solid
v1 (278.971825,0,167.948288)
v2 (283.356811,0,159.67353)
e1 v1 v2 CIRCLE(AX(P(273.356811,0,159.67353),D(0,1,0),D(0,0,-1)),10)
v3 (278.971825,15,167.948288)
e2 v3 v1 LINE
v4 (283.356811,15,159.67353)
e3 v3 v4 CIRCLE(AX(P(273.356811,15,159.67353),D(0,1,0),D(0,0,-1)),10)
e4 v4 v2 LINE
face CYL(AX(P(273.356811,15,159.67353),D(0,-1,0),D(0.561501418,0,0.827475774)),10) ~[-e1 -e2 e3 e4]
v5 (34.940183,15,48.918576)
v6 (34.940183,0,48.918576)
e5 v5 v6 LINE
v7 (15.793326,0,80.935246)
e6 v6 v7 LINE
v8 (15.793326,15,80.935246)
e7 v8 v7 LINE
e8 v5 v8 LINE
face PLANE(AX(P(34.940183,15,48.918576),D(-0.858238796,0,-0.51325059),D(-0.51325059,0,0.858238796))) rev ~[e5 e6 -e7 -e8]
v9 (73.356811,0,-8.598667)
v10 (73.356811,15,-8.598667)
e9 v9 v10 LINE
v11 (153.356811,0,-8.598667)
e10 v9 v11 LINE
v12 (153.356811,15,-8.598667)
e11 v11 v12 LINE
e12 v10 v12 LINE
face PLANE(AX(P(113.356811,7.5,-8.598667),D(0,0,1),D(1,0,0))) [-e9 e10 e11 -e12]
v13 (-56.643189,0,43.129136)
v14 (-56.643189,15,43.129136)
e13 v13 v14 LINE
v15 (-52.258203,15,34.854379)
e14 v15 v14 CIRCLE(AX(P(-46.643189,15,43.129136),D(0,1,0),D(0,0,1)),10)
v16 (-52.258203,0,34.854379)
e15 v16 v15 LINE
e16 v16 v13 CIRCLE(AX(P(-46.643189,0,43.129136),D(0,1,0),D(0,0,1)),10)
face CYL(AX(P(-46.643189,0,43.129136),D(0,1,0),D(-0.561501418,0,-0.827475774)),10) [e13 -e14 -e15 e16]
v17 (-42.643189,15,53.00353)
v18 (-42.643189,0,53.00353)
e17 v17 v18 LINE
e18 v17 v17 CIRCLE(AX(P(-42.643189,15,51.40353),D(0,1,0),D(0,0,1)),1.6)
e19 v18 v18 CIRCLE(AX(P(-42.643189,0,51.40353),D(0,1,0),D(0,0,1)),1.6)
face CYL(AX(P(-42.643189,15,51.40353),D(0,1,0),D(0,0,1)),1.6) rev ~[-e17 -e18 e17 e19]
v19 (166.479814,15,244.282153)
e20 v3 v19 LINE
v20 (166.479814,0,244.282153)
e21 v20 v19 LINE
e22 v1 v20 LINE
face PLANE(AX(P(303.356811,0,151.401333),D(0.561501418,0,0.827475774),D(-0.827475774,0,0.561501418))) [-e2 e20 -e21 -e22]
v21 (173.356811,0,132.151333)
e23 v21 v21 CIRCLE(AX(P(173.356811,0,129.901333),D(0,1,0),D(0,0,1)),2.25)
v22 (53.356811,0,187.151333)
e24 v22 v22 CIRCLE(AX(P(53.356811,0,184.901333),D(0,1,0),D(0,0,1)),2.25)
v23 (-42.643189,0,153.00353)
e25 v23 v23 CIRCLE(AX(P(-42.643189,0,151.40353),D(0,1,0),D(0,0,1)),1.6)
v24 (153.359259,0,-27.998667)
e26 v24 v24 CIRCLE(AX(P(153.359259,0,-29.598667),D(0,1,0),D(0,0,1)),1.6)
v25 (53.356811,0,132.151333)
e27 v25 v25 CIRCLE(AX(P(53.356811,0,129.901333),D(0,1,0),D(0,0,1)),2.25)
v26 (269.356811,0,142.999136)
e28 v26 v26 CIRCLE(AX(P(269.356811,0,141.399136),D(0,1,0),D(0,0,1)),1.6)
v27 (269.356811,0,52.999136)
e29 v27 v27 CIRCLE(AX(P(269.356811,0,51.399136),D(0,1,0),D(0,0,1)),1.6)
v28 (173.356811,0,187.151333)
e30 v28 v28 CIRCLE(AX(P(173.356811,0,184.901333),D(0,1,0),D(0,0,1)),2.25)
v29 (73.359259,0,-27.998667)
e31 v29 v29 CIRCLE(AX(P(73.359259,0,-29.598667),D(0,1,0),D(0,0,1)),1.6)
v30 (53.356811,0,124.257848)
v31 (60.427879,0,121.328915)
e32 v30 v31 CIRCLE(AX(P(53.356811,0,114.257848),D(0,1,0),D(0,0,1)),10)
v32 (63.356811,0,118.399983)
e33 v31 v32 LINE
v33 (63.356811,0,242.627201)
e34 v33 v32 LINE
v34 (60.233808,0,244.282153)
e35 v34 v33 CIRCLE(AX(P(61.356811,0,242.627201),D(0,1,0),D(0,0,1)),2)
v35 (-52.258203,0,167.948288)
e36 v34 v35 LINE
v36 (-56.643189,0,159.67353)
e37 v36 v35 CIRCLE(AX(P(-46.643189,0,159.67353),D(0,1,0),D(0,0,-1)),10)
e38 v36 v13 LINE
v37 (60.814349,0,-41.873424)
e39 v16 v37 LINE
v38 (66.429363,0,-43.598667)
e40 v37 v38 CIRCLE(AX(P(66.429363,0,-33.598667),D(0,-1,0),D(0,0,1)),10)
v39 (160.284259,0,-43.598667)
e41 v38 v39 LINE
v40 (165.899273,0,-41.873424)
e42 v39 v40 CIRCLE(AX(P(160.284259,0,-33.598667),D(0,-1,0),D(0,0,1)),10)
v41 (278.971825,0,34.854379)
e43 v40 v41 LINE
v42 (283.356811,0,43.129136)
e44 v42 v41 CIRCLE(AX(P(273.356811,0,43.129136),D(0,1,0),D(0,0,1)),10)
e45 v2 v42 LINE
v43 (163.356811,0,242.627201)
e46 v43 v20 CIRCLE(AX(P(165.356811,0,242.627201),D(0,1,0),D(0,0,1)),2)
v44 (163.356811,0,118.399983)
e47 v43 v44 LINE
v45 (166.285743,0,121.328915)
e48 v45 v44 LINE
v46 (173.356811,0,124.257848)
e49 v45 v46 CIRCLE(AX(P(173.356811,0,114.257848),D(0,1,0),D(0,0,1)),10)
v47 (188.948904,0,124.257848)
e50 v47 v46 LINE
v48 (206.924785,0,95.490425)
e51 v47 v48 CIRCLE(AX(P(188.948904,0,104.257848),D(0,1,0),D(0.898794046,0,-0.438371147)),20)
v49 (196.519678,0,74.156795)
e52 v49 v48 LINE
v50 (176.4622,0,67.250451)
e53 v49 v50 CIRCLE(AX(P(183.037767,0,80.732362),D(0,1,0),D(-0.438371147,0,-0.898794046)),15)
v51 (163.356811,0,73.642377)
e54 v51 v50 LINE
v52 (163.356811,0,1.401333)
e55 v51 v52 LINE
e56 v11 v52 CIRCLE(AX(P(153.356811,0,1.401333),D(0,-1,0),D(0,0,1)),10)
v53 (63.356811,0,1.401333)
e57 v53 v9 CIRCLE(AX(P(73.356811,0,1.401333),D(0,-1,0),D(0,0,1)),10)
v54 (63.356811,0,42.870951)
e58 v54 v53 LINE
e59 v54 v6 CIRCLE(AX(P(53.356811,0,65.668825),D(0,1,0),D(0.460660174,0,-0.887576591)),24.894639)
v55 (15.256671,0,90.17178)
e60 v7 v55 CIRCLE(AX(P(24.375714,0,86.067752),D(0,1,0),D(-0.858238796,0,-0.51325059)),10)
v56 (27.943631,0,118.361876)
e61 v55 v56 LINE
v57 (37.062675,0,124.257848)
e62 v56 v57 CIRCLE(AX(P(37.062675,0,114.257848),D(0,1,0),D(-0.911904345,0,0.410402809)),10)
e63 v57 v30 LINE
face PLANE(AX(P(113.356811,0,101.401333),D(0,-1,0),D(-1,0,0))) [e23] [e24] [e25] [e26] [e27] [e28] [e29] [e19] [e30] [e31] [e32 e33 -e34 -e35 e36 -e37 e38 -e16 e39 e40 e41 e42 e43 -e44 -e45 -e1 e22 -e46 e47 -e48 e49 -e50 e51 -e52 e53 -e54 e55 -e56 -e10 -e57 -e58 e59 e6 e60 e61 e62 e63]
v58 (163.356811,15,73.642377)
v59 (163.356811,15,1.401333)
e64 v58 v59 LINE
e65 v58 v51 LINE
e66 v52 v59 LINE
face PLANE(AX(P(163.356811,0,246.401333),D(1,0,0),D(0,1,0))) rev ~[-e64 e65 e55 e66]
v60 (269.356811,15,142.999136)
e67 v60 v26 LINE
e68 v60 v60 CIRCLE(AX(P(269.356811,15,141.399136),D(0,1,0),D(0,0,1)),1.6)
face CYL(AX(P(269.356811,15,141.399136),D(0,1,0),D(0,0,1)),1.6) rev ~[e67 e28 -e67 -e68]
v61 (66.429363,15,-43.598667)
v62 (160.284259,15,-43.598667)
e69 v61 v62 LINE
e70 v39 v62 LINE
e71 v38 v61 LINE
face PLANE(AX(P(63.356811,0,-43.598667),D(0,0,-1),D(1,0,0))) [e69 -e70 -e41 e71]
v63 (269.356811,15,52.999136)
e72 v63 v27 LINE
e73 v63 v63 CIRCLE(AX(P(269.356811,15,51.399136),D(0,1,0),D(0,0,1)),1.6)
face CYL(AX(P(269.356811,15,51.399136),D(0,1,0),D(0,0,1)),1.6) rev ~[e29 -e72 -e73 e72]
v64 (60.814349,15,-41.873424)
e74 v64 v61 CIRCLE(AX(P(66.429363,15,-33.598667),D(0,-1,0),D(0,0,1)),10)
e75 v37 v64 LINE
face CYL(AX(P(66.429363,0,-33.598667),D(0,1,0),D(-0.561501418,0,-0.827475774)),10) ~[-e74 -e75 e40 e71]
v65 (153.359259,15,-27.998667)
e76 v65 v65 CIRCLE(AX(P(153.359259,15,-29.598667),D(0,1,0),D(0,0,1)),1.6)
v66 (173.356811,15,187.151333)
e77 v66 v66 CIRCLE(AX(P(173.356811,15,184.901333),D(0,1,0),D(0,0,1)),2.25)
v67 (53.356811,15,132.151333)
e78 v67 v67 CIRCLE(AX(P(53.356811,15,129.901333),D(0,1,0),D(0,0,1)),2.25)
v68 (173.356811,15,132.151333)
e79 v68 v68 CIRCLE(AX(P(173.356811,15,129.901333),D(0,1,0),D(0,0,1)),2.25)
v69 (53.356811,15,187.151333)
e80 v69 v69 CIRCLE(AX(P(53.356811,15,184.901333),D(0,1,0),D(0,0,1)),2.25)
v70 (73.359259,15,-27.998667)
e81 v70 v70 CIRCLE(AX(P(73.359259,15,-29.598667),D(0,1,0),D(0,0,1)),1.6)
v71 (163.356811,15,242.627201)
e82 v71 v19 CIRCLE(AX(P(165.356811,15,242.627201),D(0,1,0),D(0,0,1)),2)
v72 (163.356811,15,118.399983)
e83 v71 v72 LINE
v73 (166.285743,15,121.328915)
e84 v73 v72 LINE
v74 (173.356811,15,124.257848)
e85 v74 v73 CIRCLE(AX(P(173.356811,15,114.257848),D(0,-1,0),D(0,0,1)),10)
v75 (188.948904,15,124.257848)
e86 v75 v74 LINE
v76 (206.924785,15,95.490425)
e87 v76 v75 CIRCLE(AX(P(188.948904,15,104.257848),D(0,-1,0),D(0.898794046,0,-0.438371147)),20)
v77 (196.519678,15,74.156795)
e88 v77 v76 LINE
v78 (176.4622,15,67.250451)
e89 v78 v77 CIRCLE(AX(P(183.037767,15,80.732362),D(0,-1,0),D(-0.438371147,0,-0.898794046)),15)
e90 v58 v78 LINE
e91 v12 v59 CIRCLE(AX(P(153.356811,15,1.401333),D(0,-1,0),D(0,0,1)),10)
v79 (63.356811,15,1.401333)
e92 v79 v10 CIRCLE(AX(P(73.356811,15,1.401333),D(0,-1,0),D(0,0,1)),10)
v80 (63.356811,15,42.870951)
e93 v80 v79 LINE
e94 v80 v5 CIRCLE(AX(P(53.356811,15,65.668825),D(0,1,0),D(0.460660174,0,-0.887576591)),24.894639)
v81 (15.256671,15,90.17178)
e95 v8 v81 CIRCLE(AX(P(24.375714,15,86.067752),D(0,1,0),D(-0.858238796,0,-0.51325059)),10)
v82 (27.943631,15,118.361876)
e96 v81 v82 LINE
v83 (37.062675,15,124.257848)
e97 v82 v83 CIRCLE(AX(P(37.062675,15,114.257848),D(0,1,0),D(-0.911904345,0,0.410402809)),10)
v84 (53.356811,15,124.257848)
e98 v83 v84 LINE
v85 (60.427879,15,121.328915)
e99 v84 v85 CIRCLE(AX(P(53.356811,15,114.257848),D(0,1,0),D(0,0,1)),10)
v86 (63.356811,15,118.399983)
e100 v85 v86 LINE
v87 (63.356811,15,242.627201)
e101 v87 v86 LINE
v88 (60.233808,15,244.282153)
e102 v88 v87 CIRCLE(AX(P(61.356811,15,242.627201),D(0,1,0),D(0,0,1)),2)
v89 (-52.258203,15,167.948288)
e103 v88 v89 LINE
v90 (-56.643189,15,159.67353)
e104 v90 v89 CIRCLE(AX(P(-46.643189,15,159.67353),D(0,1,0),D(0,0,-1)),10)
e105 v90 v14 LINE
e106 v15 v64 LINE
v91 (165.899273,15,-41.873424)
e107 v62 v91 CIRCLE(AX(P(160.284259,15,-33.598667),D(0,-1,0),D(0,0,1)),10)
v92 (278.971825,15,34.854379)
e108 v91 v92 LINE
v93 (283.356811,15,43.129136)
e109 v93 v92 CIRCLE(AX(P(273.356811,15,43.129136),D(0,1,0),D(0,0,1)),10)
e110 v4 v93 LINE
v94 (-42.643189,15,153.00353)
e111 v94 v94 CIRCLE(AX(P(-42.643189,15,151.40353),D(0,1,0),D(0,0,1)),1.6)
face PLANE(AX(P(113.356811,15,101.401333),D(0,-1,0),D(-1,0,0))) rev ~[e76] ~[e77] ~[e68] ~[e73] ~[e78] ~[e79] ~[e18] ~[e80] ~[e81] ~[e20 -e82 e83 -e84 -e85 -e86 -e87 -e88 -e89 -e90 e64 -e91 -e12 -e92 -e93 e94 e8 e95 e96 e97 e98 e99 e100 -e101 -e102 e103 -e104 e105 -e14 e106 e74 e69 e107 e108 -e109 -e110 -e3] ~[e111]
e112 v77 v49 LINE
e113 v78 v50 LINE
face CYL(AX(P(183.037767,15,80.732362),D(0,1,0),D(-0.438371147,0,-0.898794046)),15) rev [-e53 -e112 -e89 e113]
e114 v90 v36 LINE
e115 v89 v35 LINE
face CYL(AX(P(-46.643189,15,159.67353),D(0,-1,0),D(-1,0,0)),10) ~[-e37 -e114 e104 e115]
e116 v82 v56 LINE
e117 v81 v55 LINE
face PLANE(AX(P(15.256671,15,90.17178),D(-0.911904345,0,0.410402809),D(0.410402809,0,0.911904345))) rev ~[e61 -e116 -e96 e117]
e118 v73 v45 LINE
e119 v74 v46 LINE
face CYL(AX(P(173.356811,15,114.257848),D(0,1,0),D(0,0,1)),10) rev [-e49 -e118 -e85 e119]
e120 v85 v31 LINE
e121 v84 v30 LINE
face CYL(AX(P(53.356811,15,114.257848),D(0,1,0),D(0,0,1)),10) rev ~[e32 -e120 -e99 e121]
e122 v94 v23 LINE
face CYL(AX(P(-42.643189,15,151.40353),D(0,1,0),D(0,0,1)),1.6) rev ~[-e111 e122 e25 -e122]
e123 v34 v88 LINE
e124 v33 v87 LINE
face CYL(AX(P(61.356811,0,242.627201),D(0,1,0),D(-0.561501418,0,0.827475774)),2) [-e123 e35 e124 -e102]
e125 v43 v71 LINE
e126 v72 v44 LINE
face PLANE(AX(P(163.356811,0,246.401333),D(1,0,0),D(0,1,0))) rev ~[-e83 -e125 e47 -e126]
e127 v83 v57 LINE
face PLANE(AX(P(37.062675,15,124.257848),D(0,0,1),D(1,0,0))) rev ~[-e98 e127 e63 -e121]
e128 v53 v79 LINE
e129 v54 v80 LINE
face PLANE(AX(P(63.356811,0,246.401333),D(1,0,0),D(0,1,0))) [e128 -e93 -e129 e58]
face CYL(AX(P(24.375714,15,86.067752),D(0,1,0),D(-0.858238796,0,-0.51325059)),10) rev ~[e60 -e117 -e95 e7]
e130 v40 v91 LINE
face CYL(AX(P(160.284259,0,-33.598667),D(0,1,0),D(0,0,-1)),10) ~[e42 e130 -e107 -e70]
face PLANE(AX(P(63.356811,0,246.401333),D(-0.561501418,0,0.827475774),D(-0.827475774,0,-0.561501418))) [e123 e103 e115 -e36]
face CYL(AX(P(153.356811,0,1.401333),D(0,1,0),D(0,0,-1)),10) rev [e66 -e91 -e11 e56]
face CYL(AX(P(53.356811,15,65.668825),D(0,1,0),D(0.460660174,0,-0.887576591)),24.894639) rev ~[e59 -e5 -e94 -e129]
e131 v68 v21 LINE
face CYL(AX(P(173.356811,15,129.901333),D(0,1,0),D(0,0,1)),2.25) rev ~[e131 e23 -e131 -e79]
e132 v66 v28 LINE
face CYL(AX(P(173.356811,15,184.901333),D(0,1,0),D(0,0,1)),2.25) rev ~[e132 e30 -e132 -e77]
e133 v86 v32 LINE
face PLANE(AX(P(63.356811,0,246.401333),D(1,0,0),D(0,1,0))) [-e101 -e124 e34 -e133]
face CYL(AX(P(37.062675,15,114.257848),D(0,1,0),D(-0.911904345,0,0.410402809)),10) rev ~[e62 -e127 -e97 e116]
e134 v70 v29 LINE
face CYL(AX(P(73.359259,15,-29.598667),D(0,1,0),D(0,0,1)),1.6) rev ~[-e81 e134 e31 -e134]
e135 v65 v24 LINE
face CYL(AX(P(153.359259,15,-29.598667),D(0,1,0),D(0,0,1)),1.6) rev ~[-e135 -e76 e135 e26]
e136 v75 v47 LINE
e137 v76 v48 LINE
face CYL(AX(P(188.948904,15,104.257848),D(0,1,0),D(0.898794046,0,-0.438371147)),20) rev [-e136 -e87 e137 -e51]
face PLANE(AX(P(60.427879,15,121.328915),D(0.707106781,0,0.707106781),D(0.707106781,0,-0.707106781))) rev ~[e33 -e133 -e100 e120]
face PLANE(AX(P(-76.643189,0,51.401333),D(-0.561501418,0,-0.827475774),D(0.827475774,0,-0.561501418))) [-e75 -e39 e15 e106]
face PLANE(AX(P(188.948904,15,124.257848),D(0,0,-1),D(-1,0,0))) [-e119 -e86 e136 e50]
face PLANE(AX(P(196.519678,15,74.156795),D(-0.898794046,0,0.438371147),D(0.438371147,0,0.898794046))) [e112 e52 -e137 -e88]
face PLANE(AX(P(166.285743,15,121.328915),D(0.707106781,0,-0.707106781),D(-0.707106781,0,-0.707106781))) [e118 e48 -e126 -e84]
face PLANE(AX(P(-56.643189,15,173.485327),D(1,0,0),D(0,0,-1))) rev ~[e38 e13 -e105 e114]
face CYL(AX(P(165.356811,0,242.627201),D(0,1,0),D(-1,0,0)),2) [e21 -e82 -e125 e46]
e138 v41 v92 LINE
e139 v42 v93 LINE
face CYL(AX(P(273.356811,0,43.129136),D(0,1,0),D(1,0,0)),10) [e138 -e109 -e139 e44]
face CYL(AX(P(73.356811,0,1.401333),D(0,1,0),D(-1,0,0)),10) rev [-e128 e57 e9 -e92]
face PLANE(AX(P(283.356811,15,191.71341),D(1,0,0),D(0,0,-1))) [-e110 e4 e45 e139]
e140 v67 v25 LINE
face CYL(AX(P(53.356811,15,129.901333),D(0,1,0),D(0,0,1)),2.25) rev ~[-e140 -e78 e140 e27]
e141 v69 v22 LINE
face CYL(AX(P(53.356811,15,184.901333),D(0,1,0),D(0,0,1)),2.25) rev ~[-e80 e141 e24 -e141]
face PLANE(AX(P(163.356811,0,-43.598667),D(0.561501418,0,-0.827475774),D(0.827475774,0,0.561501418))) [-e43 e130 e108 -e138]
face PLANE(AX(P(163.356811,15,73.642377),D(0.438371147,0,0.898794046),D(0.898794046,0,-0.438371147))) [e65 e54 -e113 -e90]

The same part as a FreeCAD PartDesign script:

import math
import FreeCAD as App
import Part
import Sketcher

V = App.Vector
Q = App.Units.Quantity


def edges_at(feature, points):
    """Names of the edges that pass closest to the given points."""
    edges = feature.Shape.Edges
    near = lambda p: min(range(len(edges)), key=lambda i: edges[i].distToShape(Part.Vertex(*p))[0])
    return sorted({f"Edge{near(p) + 1}" for p in points})

doc = App.newDocument("Part")
body = doc.addObject("PartDesign::Body", "Body")

sketch1 = body.newObject("Sketcher::SketchObject", "Sketch")
sketch1.AttachmentSupport = (doc.getObject("XZ_Plane"), [""])
sketch1.MapMode = "FlatFace"
sketch1.addGeometry([
    Part.LineSegment(V(63.356811, -43.598667, 0), V(-76.643189, 51.401333, 0)),
    Part.LineSegment(V(-76.643189, 51.401333, 0), V(-76.643189, 151.401333, 0)),
    Part.LineSegment(V(-76.643189, 151.401333, 0), V(63.356811, 246.401333, 0)),
    Part.LineSegment(V(63.356811, 246.401333, 0), V(163.356811, 246.401333, 0)),
    Part.LineSegment(V(163.356811, 246.401333, 0), V(303.356811, 151.401333, 0)),
    Part.LineSegment(V(303.356811, 151.401333, 0), V(303.356811, 51.401333, 0)),
    Part.LineSegment(V(303.356811, 51.401333, 0), V(163.356811, -43.598667, 0)),
    Part.LineSegment(V(163.356811, -43.598667, 0), V(63.356811, -43.598667, 0)),
], False)
sketch1.addConstraint([
    Sketcher.Constraint("Coincident", 0, 2, 1, 1),
    Sketcher.Constraint("Coincident", 1, 2, 2, 1),
    Sketcher.Constraint("Coincident", 2, 2, 3, 1),
    Sketcher.Constraint("Coincident", 3, 2, 4, 1),
    Sketcher.Constraint("Coincident", 4, 2, 5, 1),
    Sketcher.Constraint("Coincident", 5, 2, 6, 1),
    Sketcher.Constraint("Coincident", 6, 2, 7, 1),
    Sketcher.Constraint("Coincident", 7, 2, 0, 1),
    Sketcher.Constraint("Vertical", 1),
    Sketcher.Constraint("Horizontal", 3),
    Sketcher.Constraint("Vertical", 5),
    Sketcher.Constraint("Horizontal", 7),
    Sketcher.Constraint("Parallel", 0, 4),
    Sketcher.Constraint("Parallel", 2, 6),
    Sketcher.Constraint("Horizontal", 1, 2, 4, 2),
    Sketcher.Constraint("Horizontal", 0, 2, 5, 2),
    Sketcher.Constraint("Vertical", 3, 2, 6, 2),
    Sketcher.Constraint("Vertical", 2, 2, 7, 2),
    Sketcher.Constraint("Equal", 7, 1),
    Sketcher.Constraint("DistanceX", 3, 1, 3, 2, 100.0),
    Sketcher.Constraint("DistanceX", 1, 2, 2, 2, 140.0),
    Sketcher.Constraint("DistanceY", 1, 2, 2, 2, 95.0),
    Sketcher.Constraint("DistanceX", 0, 2, -1, 1, 76.643189),
    Sketcher.Constraint("DistanceY", -1, 1, 0, 2, 51.401333),
])
pad1 = body.newObject("PartDesign::Pad", "Pad")
pad1.Profile = sketch1
pad1.Length = 15
pad1.Reversed = True

sketch2 = body.newObject("Sketcher::SketchObject", "Sketch001")
sketch2.AttachmentSupport = (doc.getObject("XY_Plane"), [""])
sketch2.MapMode = "FlatFace"
sketch2.AttachmentOffset = App.Placement(V(0, 0, 246.401333), App.Rotation())
sketch2.addGeometry([
    Part.LineSegment(V(63.356811, 15, 0), V(63.356811, 0, 0)),
    Part.LineSegment(V(63.356811, 0, 0), V(163.356811, 0, 0)),
    Part.LineSegment(V(163.356811, 0, 0), V(163.356811, 15, 0)),
    Part.LineSegment(V(163.356811, 15, 0), V(63.356811, 15, 0)),
], False)
sketch2.addConstraint([
    Sketcher.Constraint("Coincident", 0, 2, 1, 1),
    Sketcher.Constraint("Coincident", 1, 2, 2, 1),
    Sketcher.Constraint("Coincident", 2, 2, 3, 1),
    Sketcher.Constraint("Coincident", 3, 2, 0, 1),
    Sketcher.Constraint("Vertical", 0),
    Sketcher.Constraint("Horizontal", 1),
    Sketcher.Constraint("Vertical", 2),
    Sketcher.Constraint("Horizontal", 3),
    Sketcher.Constraint("PointOnObject", 0, 2, -1),
    Sketcher.Constraint("DistanceX", 1, 1, 1, 2, 100.0),
    Sketcher.Constraint("DistanceY", 0, 2, 0, 1, 15.0),
    Sketcher.Constraint("DistanceX", -1, 1, 0, 2, 63.356811),
])
pocket1 = body.newObject("PartDesign::Pocket", "Pocket")
pocket1.Profile = sketch2
pocket1.Length = 255

sketch3 = body.newObject("Sketcher::SketchObject", "Sketch002")
sketch3.AttachmentSupport = (doc.getObject("XZ_Plane"), [""])
sketch3.MapMode = "FlatFace"
sketch3.AttachmentOffset = App.Placement(V(0, 0, -15), App.Rotation())
sketch3.addGeometry(Part.Circle(V(53.356811, 129.901333, 0), V(0, 0, 1), 2.25), False)
sketch3.addConstraint([
    Sketcher.Constraint("Diameter", 0, 4.5),
    Sketcher.Constraint("DistanceX", -1, 1, 0, 3, 53.356811),
    Sketcher.Constraint("DistanceY", -1, 1, 0, 3, 129.901333),
])
pocket2 = body.newObject("PartDesign::Pocket", "Pocket001")
pocket2.Profile = sketch3
pocket2.Type = "UpToFirst"
pocket2.Reversed = True

sketch4 = body.newObject("Sketcher::SketchObject", "Sketch003")
sketch4.AttachmentSupport = (doc.getObject("XZ_Plane"), [""])
sketch4.MapMode = "FlatFace"
sketch4.AttachmentOffset = App.Placement(V(0, 0, -15), App.Rotation())
sketch4.addGeometry(Part.Circle(V(53.356811, 184.901333, 0), V(0, 0, 1), 2.25), False)
sketch4.addConstraint([
    Sketcher.Constraint("Diameter", 0, 4.5),
    Sketcher.Constraint("DistanceX", -1, 1, 0, 3, 53.356811),
    Sketcher.Constraint("DistanceY", -1, 1, 0, 3, 184.901333),
])
pocket3 = body.newObject("PartDesign::Pocket", "Pocket002")
pocket3.Profile = sketch4
pocket3.Type = "UpToFirst"
pocket3.Reversed = True

sketch5 = body.newObject("Sketcher::SketchObject", "Sketch004")
sketch5.AttachmentSupport = (doc.getObject("XZ_Plane"), [""])
sketch5.MapMode = "FlatFace"
sketch5.AttachmentOffset = App.Placement(V(0, 0, -15), App.Rotation())
sketch5.addGeometry(Part.Circle(V(173.356811, 129.901333, 0), V(0, 0, 1), 2.25), False)
sketch5.addConstraint([
    Sketcher.Constraint("Diameter", 0, 4.5),
    Sketcher.Constraint("DistanceX", -1, 1, 0, 3, 173.356811),
    Sketcher.Constraint("DistanceY", -1, 1, 0, 3, 129.901333),
])
pocket4 = body.newObject("PartDesign::Pocket", "Pocket003")
pocket4.Profile = sketch5
pocket4.Type = "UpToFirst"
pocket4.Reversed = True

sketch6 = body.newObject("Sketcher::SketchObject", "Sketch005")
sketch6.AttachmentSupport = (doc.getObject("XZ_Plane"), [""])
sketch6.MapMode = "FlatFace"
sketch6.AttachmentOffset = App.Placement(V(0, 0, -15), App.Rotation())
sketch6.addGeometry(Part.Circle(V(173.356811, 184.901333, 0), V(0, 0, 1), 2.25), False)
sketch6.addConstraint([
    Sketcher.Constraint("Diameter", 0, 4.5),
    Sketcher.Constraint("DistanceX", -1, 1, 0, 3, 173.356811),
    Sketcher.Constraint("DistanceY", -1, 1, 0, 3, 184.901333),
])
pocket5 = body.newObject("PartDesign::Pocket", "Pocket004")
pocket5.Profile = sketch6
pocket5.Type = "UpToFirst"
pocket5.Reversed = True

sketch7 = body.newObject("Sketcher::SketchObject", "Sketch006")
sketch7.AttachmentSupport = (doc.getObject("XZ_Plane"), [""])
sketch7.MapMode = "FlatFace"
sketch7.AttachmentOffset = App.Placement(V(0, 0, -15), App.Rotation())
sketch7.addGeometry(Part.Circle(V(180.356811, 120.901333, 0), V(0, 0, 1), 2.25), False)
sketch7.addConstraint([
    Sketcher.Constraint("Diameter", 0, 4.5),
    Sketcher.Constraint("DistanceX", -1, 1, 0, 3, 180.356811),
    Sketcher.Constraint("DistanceY", -1, 1, 0, 3, 120.901333),
])
pocket6 = body.newObject("PartDesign::Pocket", "Pocket005")
pocket6.Profile = sketch7
pocket6.Type = "UpToFirst"
pocket6.Reversed = True

sketch8 = body.newObject("Sketcher::SketchObject", "Sketch007")
sketch8.AttachmentSupport = (doc.getObject("XZ_Plane"), [""])
sketch8.MapMode = "FlatFace"
sketch8.AttachmentOffset = App.Placement(V(0, 0, -15), App.Rotation())
sketch8.addGeometry(Part.Circle(V(180.356811, 81.901333, 0), V(0, 0, 1), 2.25), False)
sketch8.addConstraint([
    Sketcher.Constraint("Diameter", 0, 4.5),
    Sketcher.Constraint("DistanceX", -1, 1, 0, 3, 180.356811),
    Sketcher.Constraint("DistanceY", -1, 1, 0, 3, 81.901333),
])
pocket7 = body.newObject("PartDesign::Pocket", "Pocket006")
pocket7.Profile = sketch8
pocket7.Type = "UpToFirst"
pocket7.Reversed = True

sketch9 = body.newObject("Sketcher::SketchObject", "Sketch008")
sketch9.AttachmentSupport = (doc.getObject("XZ_Plane"), [""])
sketch9.MapMode = "FlatFace"
sketch9.AttachmentOffset = App.Placement(V(0, 0, -15), App.Rotation())
sketch9.addGeometry(Part.Circle(V(46.356811, 120.901333, 0), V(0, 0, 1), 2.25), False)
sketch9.addConstraint([
    Sketcher.Constraint("Diameter", 0, 4.5),
    Sketcher.Constraint("DistanceX", -1, 1, 0, 3, 46.356811),
    Sketcher.Constraint("DistanceY", -1, 1, 0, 3, 120.901333),
])
pocket8 = body.newObject("PartDesign::Pocket", "Pocket007")
pocket8.Profile = sketch9
pocket8.Type = "UpToFirst"
pocket8.Reversed = True

sketch10 = body.newObject("Sketcher::SketchObject", "Sketch009")
sketch10.AttachmentSupport = (doc.getObject("XZ_Plane"), [""])
sketch10.MapMode = "FlatFace"
sketch10.AttachmentOffset = App.Placement(V(0, 0, -15), App.Rotation())
sketch10.addGeometry(Part.Circle(V(46.356811, 81.901333, 0), V(0, 0, 1), 2.25), False)
sketch10.addConstraint([
    Sketcher.Constraint("Diameter", 0, 4.5),
    Sketcher.Constraint("DistanceX", -1, 1, 0, 3, 46.356811),
    Sketcher.Constraint("DistanceY", -1, 1, 0, 3, 81.901333),
])
pocket9 = body.newObject("PartDesign::Pocket", "Pocket008")
pocket9.Profile = sketch10
pocket9.Type = "UpToFirst"
pocket9.Reversed = True
doc.recompute()

fillet = body.newObject("PartDesign::Fillet", "Fillet")
fillet.Base = (pocket9, edges_at(pocket9, [
    (-76.643, 7.5, 51.401),
    (63.357, 7.5, -43.599),
    (163.357, 7.5, -43.599),
    (303.357, 7.5, 51.401),
    (303.357, 7.5, 151.401),
    (-76.643, 7.5, 151.401),
    (63.357, 7.5, -8.599),
    (163.357, 7.5, -8.599),
]))
fillet.Radius = 10
doc.recompute()

fillet2 = body.newObject("PartDesign::Fillet", "Fillet001")
fillet2.Base = (fillet, edges_at(fillet, [(163.357, 7.5, 246.401), (63.357, 7.5, 246.401)]))
fillet2.Radius = 2

sketch11 = body.newObject("Sketcher::SketchObject", "Sketch010")
sketch11.AttachmentSupport = (doc.getObject("XZ_Plane"), [""])
sketch11.MapMode = "FlatFace"
sketch11.AttachmentOffset = App.Placement(V(0, 0, -15), App.Rotation())
sketch11.addGeometry([
    Part.LineSegment(V(34.940183, 48.918576, 0), V(15.793326, 80.935246, 0)),
    Part.ArcOfCircle(Part.Circle(V(24.375714, 86.067752, 0), V(0, 0, 1), 10), math.radians(155.769859), math.radians(210.880594)),
    Part.LineSegment(V(15.256671, 90.17178, 0), V(27.943631, 118.361876, 0)),
    Part.ArcOfCircle(Part.Circle(V(37.062675, 114.257848, 0), V(0, 0, 1), 10), math.radians(90), math.radians(155.769859)),
    Part.LineSegment(V(37.062675, 124.257848, 0), V(53.356811, 124.257848, 0)),
    Part.ArcOfCircle(Part.Circle(V(53.356811, 114.257848, 0), V(0, 0, 1), 10), math.radians(45), math.radians(90)),
    Part.LineSegment(V(60.427879, 121.328915, 0), V(63.356811, 118.399983, 0)),
    Part.LineSegment(V(63.356811, 118.399983, 0), V(63.356811, 59.592281, 0)),
    Part.LineSegment(V(63.356811, 59.592281, 0), V(64.824779, 43.572926, 0)),
    Part.ArcOfCircle(Part.Circle(V(53.356811, 65.668825, 0), V(0, 0, 1), 24.894639), math.radians(-137.712926), math.radians(-62.570284)),
], False)
sketch11.addConstraint([
    Sketcher.Constraint("Tangent", 0, 2, 1, 2),
    Sketcher.Constraint("Tangent", 1, 1, 2, 1),
    Sketcher.Constraint("Tangent", 2, 2, 3, 2),
    Sketcher.Constraint("Tangent", 3, 1, 4, 1),
    Sketcher.Constraint("Tangent", 4, 2, 5, 2),
    Sketcher.Constraint("Tangent", 5, 1, 6, 1),
    Sketcher.Constraint("Coincident", 6, 2, 7, 1),
    Sketcher.Constraint("Coincident", 7, 2, 8, 1),
    Sketcher.Constraint("Coincident", 8, 2, 9, 2),
    Sketcher.Constraint("Coincident", 9, 1, 0, 1),
    Sketcher.Constraint("Horizontal", 4),
    Sketcher.Constraint("Vertical", 7),
    Sketcher.Constraint("Equal", 1, 3),
    Sketcher.Constraint("Equal", 3, 5),
    Sketcher.Constraint("Vertical", 5, 3, 9, 3),
    Sketcher.Constraint("Radius", 1, 10.0),
    Sketcher.Constraint("Angle", 6, Q("-45 deg")),
    Sketcher.Constraint("DistanceX", 5, 3, 6, 2, 10.0),
    Sketcher.Constraint("Radius", 9, 24.894639),
    Sketcher.Constraint("DistanceY", 0, 2, 3, 3, 33.322601),
    Sketcher.Constraint("DistanceY", 7, 2, 1, 1, 30.5795),
    Sketcher.Constraint("DistanceY", 8, 2, 9, 3, 22.095898),
    Sketcher.Constraint("DistanceX", 4, 1, 4, 2, 16.294136),
    Sketcher.Constraint("DistanceY", 7, 2, 7, 1, 58.807702),
    Sketcher.Constraint("DistanceX", -1, 1, 5, 3, 53.356811),
    Sketcher.Constraint("DistanceX", -1, 1, 1, 1, 15.256671),
    Sketcher.Constraint("DistanceY", -1, 1, 1, 1, 90.17178),
    Sketcher.Constraint("DistanceY", 9, 3, 0, 2, 15.266422),
])
pocket10 = body.newObject("PartDesign::Pocket", "Pocket009")
pocket10.Profile = sketch11
pocket10.Type = "UpToFirst"
pocket10.Reversed = True

sketch12 = body.newObject("Sketcher::SketchObject", "Sketch011")
sketch12.AttachmentSupport = (doc.getObject("XZ_Plane"), [""])
sketch12.MapMode = "FlatFace"
sketch12.AttachmentOffset = App.Placement(V(0, 0, -15), App.Rotation())
sketch12.addGeometry([
    Part.LineSegment(V(163.356811, 118.399983, 0), V(166.285743, 121.328915, 0)),
    Part.ArcOfCircle(Part.Circle(V(173.356811, 114.257848, 0), V(0, 0, 1), 10), math.radians(90), math.radians(135)),
    Part.LineSegment(V(173.356811, 124.257848, 0), V(188.948904, 124.257848, 0)),
    Part.ArcOfCircle(Part.Circle(V(188.948904, 104.257848, 0), V(0, 0, 1), 20), math.radians(-26), math.radians(90)),
    Part.LineSegment(V(206.924785, 95.490425, 0), V(196.519678, 74.156795, 0)),
    Part.ArcOfCircle(Part.Circle(V(183.037767, 80.732362, 0), V(0, 0, 1), 15), math.radians(-116), math.radians(-26)),
    Part.LineSegment(V(176.4622, 67.250451, 0), V(163.356811, 73.642377, 0)),
    Part.LineSegment(V(163.356811, 73.642377, 0), V(163.356811, 118.399983, 0)),
], False)
sketch12.addConstraint([
    Sketcher.Constraint("Tangent", 0, 2, 1, 2),
    Sketcher.Constraint("Tangent", 1, 1, 2, 1),
    Sketcher.Constraint("Tangent", 2, 2, 3, 2),
    Sketcher.Constraint("Tangent", 3, 1, 4, 1),
    Sketcher.Constraint("Tangent", 4, 2, 5, 2),
    Sketcher.Constraint("Tangent", 5, 1, 6, 1),
    Sketcher.Constraint("Coincident", 6, 2, 7, 1),
    Sketcher.Constraint("Coincident", 7, 2, 0, 1),
    Sketcher.Constraint("Horizontal", 2),
    Sketcher.Constraint("Vertical", 7),
    Sketcher.Constraint("Perpendicular", 4, 6),
    Sketcher.Constraint("Radius", 1, 10.0),
    Sketcher.Constraint("Radius", 3, 20.0),
    Sketcher.Constraint("Radius", 5, 15.0),
    Sketcher.Constraint("Angle", 0, Q("45 deg")),
    Sketcher.Constraint("Angle", 4, Q("-116 deg")),
    Sketcher.Constraint("DistanceX", 6, 2, 1, 3, 10.0),
    Sketcher.Constraint("DistanceX", -1, 1, 5, 1, 176.4622),
    Sketcher.Constraint("Distance", 4, 23.735838),
    Sketcher.Constraint("Distance", 6, 14.581081),
    Sketcher.Constraint("DistanceY", -1, 1, 5, 3, 80.732362),
])
pocket11 = body.newObject("PartDesign::Pocket", "Pocket010")
pocket11.Profile = sketch12
pocket11.Type = "UpToFirst"
pocket11.Reversed = True

sketch13 = body.newObject("Sketcher::SketchObject", "Sketch012")
sketch13.AttachmentSupport = (doc.getObject("XZ_Plane"), [""])
sketch13.MapMode = "FlatFace"
sketch13.AttachmentOffset = App.Placement(V(0, 0, -15), App.Rotation())
sketch13.addGeometry([
    Part.LineSegment(V(-76.643189, 30.451872, 0), V(-76.643189, 173.485327, 0)),
    Part.LineSegment(V(-76.643189, 173.485327, 0), V(-56.643189, 173.485327, 0)),
    Part.LineSegment(V(-56.643189, 173.485327, 0), V(-56.643189, 30.451872, 0)),
    Part.LineSegment(V(-56.643189, 30.451872, 0), V(-76.643189, 30.451872, 0)),
], False)
sketch13.addConstraint([
    Sketcher.Constraint("Coincident", 0, 2, 1, 1),
    Sketcher.Constraint("Coincident", 1, 2, 2, 1),
    Sketcher.Constraint("Coincident", 2, 2, 3, 1),
    Sketcher.Constraint("Coincident", 3, 2, 0, 1),
    Sketcher.Constraint("Vertical", 0),
    Sketcher.Constraint("Horizontal", 1),
    Sketcher.Constraint("Vertical", 2),
    Sketcher.Constraint("Horizontal", 3),
    Sketcher.Constraint("DistanceX", 1, 1, 1, 2, 20.0),
    Sketcher.Constraint("DistanceY", 0, 1, 0, 2, 143.033455),
    Sketcher.Constraint("DistanceX", 0, 2, -1, 1, 76.643189),
    Sketcher.Constraint("DistanceY", -1, 1, 2, 2, 30.451872),
])
pocket12 = body.newObject("PartDesign::Pocket", "Pocket011")
pocket12.Profile = sketch13
pocket12.Type = "UpToFirst"
pocket12.Reversed = True

sketch14 = body.newObject("Sketcher::SketchObject", "Sketch013")
sketch14.AttachmentSupport = (doc.getObject("XZ_Plane"), [""])
sketch14.MapMode = "FlatFace"
sketch14.AttachmentOffset = App.Placement(V(0, 0, -15), App.Rotation())
sketch14.addGeometry([
    Part.LineSegment(V(283.356811, 10.404728, 0), V(283.356811, 191.71341, 0)),
    Part.LineSegment(V(283.356811, 191.71341, 0), V(303.356811, 191.71341, 0)),
    Part.LineSegment(V(303.356811, 191.71341, 0), V(303.356811, 10.404728, 0)),
    Part.LineSegment(V(303.356811, 10.404728, 0), V(283.356811, 10.404728, 0)),
], False)
sketch14.addConstraint([
    Sketcher.Constraint("Coincident", 0, 2, 1, 1),
    Sketcher.Constraint("Coincident", 1, 2, 2, 1),
    Sketcher.Constraint("Coincident", 2, 2, 3, 1),
    Sketcher.Constraint("Coincident", 3, 2, 0, 1),
    Sketcher.Constraint("Vertical", 0),
    Sketcher.Constraint("Horizontal", 1),
    Sketcher.Constraint("Vertical", 2),
    Sketcher.Constraint("Horizontal", 3),
    Sketcher.Constraint("DistanceX", 1, 1, 1, 2, 20.0),
    Sketcher.Constraint("DistanceY", 0, 1, 0, 2, 181.308682),
    Sketcher.Constraint("DistanceX", -1, 1, 0, 2, 283.356811),
    Sketcher.Constraint("DistanceY", -1, 1, 0, 2, 191.71341),
])
pocket13 = body.newObject("PartDesign::Pocket", "Pocket012")
pocket13.Profile = sketch14
pocket13.Type = "UpToFirst"
pocket13.Reversed = True
doc.recompute()

fillet3 = body.newObject("PartDesign::Fillet", "Fillet002")
fillet3.Base = (pocket13, edges_at(pocket13, [
    (-56.643, 7.5, 37.83),
    (-56.643, 7.5, 164.973),
    (283.357, 7.5, 37.83),
    (283.357, 7.5, 164.973),
]))
fillet3.Radius = 10

sketch15 = body.newObject("Sketcher::SketchObject", "Sketch014")
sketch15.AttachmentSupport = (doc.getObject("XZ_Plane"), [""])
sketch15.MapMode = "FlatFace"
sketch15.AttachmentOffset = App.Placement(V(0, 0, -15), App.Rotation())
sketch15.addGeometry(Part.Circle(V(-42.643189, 51.40353, 0), V(0, 0, 1), 1.6), False)
sketch15.addConstraint([
    Sketcher.Constraint("Diameter", 0, 3.2),
    Sketcher.Constraint("DistanceX", 0, 3, -1, 1, 42.643189),
    Sketcher.Constraint("DistanceY", -1, 1, 0, 3, 51.40353),
])
pocket14 = body.newObject("PartDesign::Pocket", "Pocket013")
pocket14.Profile = sketch15
pocket14.Type = "UpToFirst"
pocket14.Reversed = True

sketch16 = body.newObject("Sketcher::SketchObject", "Sketch015")
sketch16.AttachmentSupport = (doc.getObject("XZ_Plane"), [""])
sketch16.MapMode = "FlatFace"
sketch16.AttachmentOffset = App.Placement(V(0, 0, -15), App.Rotation())
sketch16.addGeometry(Part.Circle(V(-42.643189, 151.40353, 0), V(0, 0, 1), 1.6), False)
sketch16.addConstraint([
    Sketcher.Constraint("Diameter", 0, 3.2),
    Sketcher.Constraint("DistanceX", 0, 3, -1, 1, 42.643189),
    Sketcher.Constraint("DistanceY", -1, 1, 0, 3, 151.40353),
])
pocket15 = body.newObject("PartDesign::Pocket", "Pocket014")
pocket15.Profile = sketch16
pocket15.Type = "UpToFirst"
pocket15.Reversed = True

sketch17 = body.newObject("Sketcher::SketchObject", "Sketch016")
sketch17.AttachmentSupport = (doc.getObject("XZ_Plane"), [""])
sketch17.MapMode = "FlatFace"
sketch17.AttachmentOffset = App.Placement(V(0, 0, -15), App.Rotation())
sketch17.addGeometry(Part.Circle(V(73.359259, -29.598667, 0), V(0, 0, 1), 1.6), False)
sketch17.addConstraint([
    Sketcher.Constraint("Diameter", 0, 3.2),
    Sketcher.Constraint("DistanceX", -1, 1, 0, 3, 73.359259),
    Sketcher.Constraint("DistanceY", 0, 3, -1, 1, 29.598667),
])
pocket16 = body.newObject("PartDesign::Pocket", "Pocket015")
pocket16.Profile = sketch17
pocket16.Type = "UpToFirst"
pocket16.Reversed = True

sketch18 = body.newObject("Sketcher::SketchObject", "Sketch017")
sketch18.AttachmentSupport = (doc.getObject("XZ_Plane"), [""])
sketch18.MapMode = "FlatFace"
sketch18.AttachmentOffset = App.Placement(V(0, 0, -15), App.Rotation())
sketch18.addGeometry(Part.Circle(V(153.359259, -29.598667, 0), V(0, 0, 1), 1.6), False)
sketch18.addConstraint([
    Sketcher.Constraint("Diameter", 0, 3.2),
    Sketcher.Constraint("DistanceX", -1, 1, 0, 3, 153.359259),
    Sketcher.Constraint("DistanceY", 0, 3, -1, 1, 29.598667),
])
pocket17 = body.newObject("PartDesign::Pocket", "Pocket016")
pocket17.Profile = sketch18
pocket17.Type = "UpToFirst"
pocket17.Reversed = True

sketch19 = body.newObject("Sketcher::SketchObject", "Sketch018")
sketch19.AttachmentSupport = (doc.getObject("XZ_Plane"), [""])
sketch19.MapMode = "FlatFace"
sketch19.AttachmentOffset = App.Placement(V(0, 0, -15), App.Rotation())
sketch19.addGeometry(Part.Circle(V(269.356811, 51.399136, 0), V(0, 0, 1), 1.6), False)
sketch19.addConstraint([
    Sketcher.Constraint("Diameter", 0, 3.2),
    Sketcher.Constraint("DistanceX", -1, 1, 0, 3, 269.356811),
    Sketcher.Constraint("DistanceY", -1, 1, 0, 3, 51.399136),
])
pocket18 = body.newObject("PartDesign::Pocket", "Pocket017")
pocket18.Profile = sketch19
pocket18.Type = "UpToFirst"
pocket18.Reversed = True

sketch20 = body.newObject("Sketcher::SketchObject", "Sketch019")
sketch20.AttachmentSupport = (doc.getObject("XZ_Plane"), [""])
sketch20.MapMode = "FlatFace"
sketch20.AttachmentOffset = App.Placement(V(0, 0, -15), App.Rotation())
sketch20.addGeometry(Part.Circle(V(269.356811, 141.399136, 0), V(0, 0, 1), 1.6), False)
sketch20.addConstraint([
    Sketcher.Constraint("Diameter", 0, 3.2),
    Sketcher.Constraint("DistanceX", -1, 1, 0, 3, 269.356811),
    Sketcher.Constraint("DistanceY", -1, 1, 0, 3, 141.399136),
])
pocket19 = body.newObject("PartDesign::Pocket", "Pocket018")
pocket19.Profile = sketch20
pocket19.Type = "UpToFirst"
pocket19.Reversed = True

doc.recompute()
